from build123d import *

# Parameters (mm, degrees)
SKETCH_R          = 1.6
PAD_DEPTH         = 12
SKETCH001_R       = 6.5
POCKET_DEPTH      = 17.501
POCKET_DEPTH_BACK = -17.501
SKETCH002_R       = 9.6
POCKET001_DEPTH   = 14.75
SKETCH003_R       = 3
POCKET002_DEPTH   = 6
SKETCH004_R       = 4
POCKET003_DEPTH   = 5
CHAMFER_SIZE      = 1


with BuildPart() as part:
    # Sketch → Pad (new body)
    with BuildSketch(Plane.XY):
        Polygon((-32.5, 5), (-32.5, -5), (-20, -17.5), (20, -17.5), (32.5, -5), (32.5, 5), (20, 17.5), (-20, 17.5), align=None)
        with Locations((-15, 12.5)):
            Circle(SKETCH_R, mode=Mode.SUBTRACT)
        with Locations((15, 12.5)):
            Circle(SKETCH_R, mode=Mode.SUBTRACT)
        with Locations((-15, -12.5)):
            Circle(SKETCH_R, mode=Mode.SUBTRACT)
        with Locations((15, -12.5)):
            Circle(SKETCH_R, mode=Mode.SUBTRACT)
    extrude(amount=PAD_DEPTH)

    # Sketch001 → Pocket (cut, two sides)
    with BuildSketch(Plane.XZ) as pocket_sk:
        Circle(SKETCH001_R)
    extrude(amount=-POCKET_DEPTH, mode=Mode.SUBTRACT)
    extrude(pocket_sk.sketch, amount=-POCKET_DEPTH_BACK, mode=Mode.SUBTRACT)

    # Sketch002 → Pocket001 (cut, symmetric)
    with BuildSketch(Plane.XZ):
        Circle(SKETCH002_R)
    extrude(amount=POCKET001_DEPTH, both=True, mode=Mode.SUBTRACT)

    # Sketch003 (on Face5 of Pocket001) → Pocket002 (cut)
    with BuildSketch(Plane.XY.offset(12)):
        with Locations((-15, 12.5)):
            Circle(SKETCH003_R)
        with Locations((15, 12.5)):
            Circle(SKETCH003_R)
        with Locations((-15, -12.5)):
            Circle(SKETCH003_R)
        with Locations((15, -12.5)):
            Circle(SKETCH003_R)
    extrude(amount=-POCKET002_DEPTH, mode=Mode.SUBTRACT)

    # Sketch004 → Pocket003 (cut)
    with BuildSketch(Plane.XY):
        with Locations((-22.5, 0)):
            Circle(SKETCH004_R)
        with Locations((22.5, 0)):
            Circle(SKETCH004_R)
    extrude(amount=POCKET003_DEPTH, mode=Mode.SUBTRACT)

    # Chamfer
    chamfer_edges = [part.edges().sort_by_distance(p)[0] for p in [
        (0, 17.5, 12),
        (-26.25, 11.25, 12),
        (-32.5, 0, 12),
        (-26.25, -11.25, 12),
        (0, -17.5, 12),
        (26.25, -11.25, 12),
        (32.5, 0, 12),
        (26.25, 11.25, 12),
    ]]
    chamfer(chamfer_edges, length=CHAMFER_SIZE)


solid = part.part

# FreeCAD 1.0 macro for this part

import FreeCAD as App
import Part
import Sketcher

V = App.Vector


def edges_at(feature, points):
    """Names of the edges that pass closest to the given points."""
    edges = feature.Shape.Edges
    near = lambda p: min(range(len(edges)), key=lambda i: edges[i].distToShape(Part.Vertex(*p))[0])
    return sorted({f"Edge{near(p) + 1}" for p in points})


def add_polygon(sketch, points):
    """Adds a closed chain of lines whose ends are joined by coincident constraints."""
    first, n = sketch.GeometryCount, len(points)
    for a, b in zip(points, points[1:] + points[:1]):
        sketch.addGeometry(Part.LineSegment(App.Vector(*a, 0), App.Vector(*b, 0)), False)
    for i in range(n):
        sketch.addConstraint(Sketcher.Constraint("Coincident", first + i, 2, first + (i + 1) % n, 1))

doc = App.newDocument("Part")
params = doc.addObject("Spreadsheet::Sheet", "Params")
for row, (alias, value) in enumerate([
    ("sketch1_diameter", "3.2 mm"),
    ("sketch1_width", "40 mm"),
    ("sketch1_height", "10 mm"),
    ("pad1_length", "12 mm"),
    ("sketch2_diameter", "13 mm"),
    ("sketch3_diameter", "19.2 mm"),
    ("pocket2_length", "29.5 mm"),
    ("sketch4_diameter", "6 mm"),
    ("pocket3_length", "6 mm"),
    ("sketch5_diameter", "8 mm"),
    ("pocket4_length", "5 mm"),
    ("chamfer_size", "1 mm"),
], start=1):
    params.set(f"A{row}", alias)
    params.set(f"B{row}", "=" + value)
    params.setAlias(f"B{row}", alias)

body = doc.addObject("PartDesign::Body", "Body")

# Sketch on XY plane
sketch1 = body.newObject("Sketcher::SketchObject", "Sketch")
sketch1.AttachmentSupport = (doc.getObject("XY_Plane"), [""])
sketch1.MapMode = "FlatFace"
add_polygon(sketch1, [(-32.5, 5), (-32.5, -5), (-20, -17.5), (20, -17.5), (32.5, -5), (32.5, 5), (20, 17.5), (-20, 17.5)])  # lines 0-7
sketch1.addGeometry(Part.Circle(V(-15, -12.5, 0), V(0, 0, 1), 1.6), False)  # 8
sketch1.addGeometry(Part.Circle(V(15, -12.5, 0), V(0, 0, 1), 1.6), False)  # 9
sketch1.addGeometry(Part.Circle(V(-15, 12.5, 0), V(0, 0, 1), 1.6), False)  # 10
sketch1.addGeometry(Part.Circle(V(15, 12.5, 0), V(0, 0, 1), 1.6), False)  # 11
sketch1.addConstraint([
    Sketcher.Constraint("Vertical", 0),
    Sketcher.Constraint("Horizontal", 2),
    Sketcher.Constraint("Vertical", 4),
    Sketcher.Constraint("Horizontal", 6),
    Sketcher.Constraint("Equal", 8, 9),
    Sketcher.Constraint("Equal", 9, 10),
    Sketcher.Constraint("Equal", 10, 11),
    Sketcher.Constraint("Symmetric", 9, 3, 10, 3, -1, 1),
    Sketcher.Constraint("Symmetric", 8, 3, 11, 3, -1, 1),
    Sketcher.Constraint("Symmetric", 0, 2, 4, 2, -1, 1),
    Sketcher.Constraint("Symmetric", 1, 2, 5, 2, -1, 1),
    Sketcher.Constraint("Symmetric", 8, 3, 9, 3, -2),
    Sketcher.Constraint("Perpendicular", 1, 3),
    Sketcher.Constraint("Perpendicular", 5, 7),
    Sketcher.Constraint("Horizontal", 0, 2, 3, 2),
    Sketcher.Constraint("Horizontal", 4, 2, 7, 2),
    Sketcher.Constraint("Vertical", 2, 2, 5, 2),
    Sketcher.Constraint("Diameter", 8, 3.2),
    Sketcher.Constraint("DistanceX", 2, 1, 2, 2, 40.0),
    Sketcher.Constraint("DistanceY", 0, 2, 0, 1, 10.0),
    Sketcher.Constraint("DistanceX", 8, 3, -1, 1, 15.0),
    Sketcher.Constraint("DistanceY", 8, 3, 10, 3, 25.0),
    Sketcher.Constraint("DistanceY", 1, 2, 8, 3, 5.0),
])
sketch1.setExpression("Constraints[25]", "Params.sketch1_diameter")
sketch1.setExpression("Constraints[26]", "Params.sketch1_width")
sketch1.setExpression("Constraints[27]", "Params.sketch1_height")
pad1 = body.newObject("PartDesign::Pad", "Pad")
pad1.Profile = sketch1
pad1.setExpression("Length", "Params.pad1_length")

# Sketch on XZ plane
sketch2 = body.newObject("Sketcher::SketchObject", "Sketch001")
sketch2.AttachmentSupport = (doc.getObject("XZ_Plane"), [""])
sketch2.MapMode = "FlatFace"
sketch2.addGeometry(Part.Circle(V(0, 0, 0), V(0, 0, 1), 6), False)
sketch2.addConstraint([
    Sketcher.Constraint("Coincident", 0, 3, -1, 1),
    Sketcher.Constraint("Diameter", 0, 13.0),
])
sketch2.setExpression("Constraints[1]", "Params.sketch2_diameter")
pocket1 = body.newObject("PartDesign::Pocket", "Pocket")
pocket1.Profile = sketch2
pocket1.Type = "ThroughAll"
pocket1.Midplane = True

# Sketch on XZ plane
sketch3 = body.newObject("Sketcher::SketchObject", "Sketch002")
sketch3.AttachmentSupport = (doc.getObject("XZ_Plane"), [""])
sketch3.MapMode = "FlatFace"
sketch3.addGeometry(Part.Circle(V(0, 0, 0), V(0, 0, 1), 10), False)
sketch3.addConstraint([
    Sketcher.Constraint("Coincident", 0, 3, -1, 1),
    Sketcher.Constraint("Diameter", 0, 19.2),
])
sketch3.setExpression("Constraints[1]", "Params.sketch3_diameter")
pocket2 = body.newObject("PartDesign::Pocket", "Pocket001")
pocket2.Profile = sketch3
pocket2.setExpression("Length", "Params.pocket2_length")
pocket2.Midplane = True

# Sketch on XY plane
sketch4 = body.newObject("Sketcher::SketchObject", "Sketch003")
sketch4.AttachmentSupport = (doc.getObject("XY_Plane"), [""])
sketch4.MapMode = "FlatFace"
sketch4.AttachmentOffset = App.Placement(V(0, 0, 12), App.Rotation())
sketch4.addGeometry([
    Part.Circle(V(-15, 12.5, 0), V(0, 0, 1), 3),
    Part.Circle(V(15, 12.5, 0), V(0, 0, 1), 3),
    Part.Circle(V(-15, -12.5, 0), V(0, 0, 1), 3),
    Part.Circle(V(15, -12.5, 0), V(0, 0, 1), 3),
], False)
sketch4.addConstraint([
    Sketcher.Constraint("Equal", 0, 1),
    Sketcher.Constraint("Equal", 1, 2),
    Sketcher.Constraint("Equal", 2, 3),
    Sketcher.Constraint("Symmetric", 1, 3, 2, 3, -1, 1),
    Sketcher.Constraint("Symmetric", 0, 3, 3, 3, -1, 1),
    Sketcher.Constraint("Symmetric", 0, 3, 1, 3, -2),
    Sketcher.Constraint("Diameter", 0, 6.0),
    Sketcher.Constraint("DistanceX", 0, 3, -1, 1, 15.0),
    Sketcher.Constraint("DistanceY", 2, 3, 0, 3, 25.0),
])
sketch4.setExpression("Constraints[6]", "Params.sketch4_diameter")
pocket3 = body.newObject("PartDesign::Pocket", "Pocket002")
pocket3.Profile = sketch4
pocket3.setExpression("Length", "Params.pocket3_length")

# Sketch on XY plane
sketch5 = body.newObject("Sketcher::SketchObject", "Sketch004")
sketch5.AttachmentSupport = (doc.getObject("XY_Plane"), [""])
sketch5.MapMode = "FlatFace"
sketch5.addGeometry([
    Part.Circle(V(-22.5, 0, 0), V(0, 0, 1), 4),
    Part.Circle(V(22.5, 0, 0), V(0, 0, 1), 4),
], False)
sketch5.addConstraint([
    Sketcher.Constraint("Equal", 0, 1),
    Sketcher.Constraint("Symmetric", 0, 3, 1, 3, -1, 1),
    Sketcher.Constraint("PointOnObject", 0, 3, -1),
    Sketcher.Constraint("Diameter", 0, 8.0),
    Sketcher.Constraint("DistanceX", 0, 3, 1, 3, 45.0),
])
sketch5.setExpression("Constraints[3]", "Params.sketch5_diameter")
pocket4 = body.newObject("PartDesign::Pocket", "Pocket003")
pocket4.Profile = sketch5
pocket4.setExpression("Length", "Params.pocket4_length")
pocket4.Reversed = True
doc.recompute()

chamfer = body.newObject("PartDesign::Chamfer", "Chamfer")
chamfer.Base = (pocket4, edges_at(pocket4, [
    (0, 17.5, 12),
    (-26.25, 11.25, 12),
    (-32.5, 0, 12),
    (-26.25, -11.25, 12),
    (0, -17.5, 12),
    (26.25, -11.25, 12),
    (32.5, 0, 12),
    (26.25, 11.25, 12),
]))
chamfer.setExpression("Size", "Params.chamfer_size")

doc.recompute()
